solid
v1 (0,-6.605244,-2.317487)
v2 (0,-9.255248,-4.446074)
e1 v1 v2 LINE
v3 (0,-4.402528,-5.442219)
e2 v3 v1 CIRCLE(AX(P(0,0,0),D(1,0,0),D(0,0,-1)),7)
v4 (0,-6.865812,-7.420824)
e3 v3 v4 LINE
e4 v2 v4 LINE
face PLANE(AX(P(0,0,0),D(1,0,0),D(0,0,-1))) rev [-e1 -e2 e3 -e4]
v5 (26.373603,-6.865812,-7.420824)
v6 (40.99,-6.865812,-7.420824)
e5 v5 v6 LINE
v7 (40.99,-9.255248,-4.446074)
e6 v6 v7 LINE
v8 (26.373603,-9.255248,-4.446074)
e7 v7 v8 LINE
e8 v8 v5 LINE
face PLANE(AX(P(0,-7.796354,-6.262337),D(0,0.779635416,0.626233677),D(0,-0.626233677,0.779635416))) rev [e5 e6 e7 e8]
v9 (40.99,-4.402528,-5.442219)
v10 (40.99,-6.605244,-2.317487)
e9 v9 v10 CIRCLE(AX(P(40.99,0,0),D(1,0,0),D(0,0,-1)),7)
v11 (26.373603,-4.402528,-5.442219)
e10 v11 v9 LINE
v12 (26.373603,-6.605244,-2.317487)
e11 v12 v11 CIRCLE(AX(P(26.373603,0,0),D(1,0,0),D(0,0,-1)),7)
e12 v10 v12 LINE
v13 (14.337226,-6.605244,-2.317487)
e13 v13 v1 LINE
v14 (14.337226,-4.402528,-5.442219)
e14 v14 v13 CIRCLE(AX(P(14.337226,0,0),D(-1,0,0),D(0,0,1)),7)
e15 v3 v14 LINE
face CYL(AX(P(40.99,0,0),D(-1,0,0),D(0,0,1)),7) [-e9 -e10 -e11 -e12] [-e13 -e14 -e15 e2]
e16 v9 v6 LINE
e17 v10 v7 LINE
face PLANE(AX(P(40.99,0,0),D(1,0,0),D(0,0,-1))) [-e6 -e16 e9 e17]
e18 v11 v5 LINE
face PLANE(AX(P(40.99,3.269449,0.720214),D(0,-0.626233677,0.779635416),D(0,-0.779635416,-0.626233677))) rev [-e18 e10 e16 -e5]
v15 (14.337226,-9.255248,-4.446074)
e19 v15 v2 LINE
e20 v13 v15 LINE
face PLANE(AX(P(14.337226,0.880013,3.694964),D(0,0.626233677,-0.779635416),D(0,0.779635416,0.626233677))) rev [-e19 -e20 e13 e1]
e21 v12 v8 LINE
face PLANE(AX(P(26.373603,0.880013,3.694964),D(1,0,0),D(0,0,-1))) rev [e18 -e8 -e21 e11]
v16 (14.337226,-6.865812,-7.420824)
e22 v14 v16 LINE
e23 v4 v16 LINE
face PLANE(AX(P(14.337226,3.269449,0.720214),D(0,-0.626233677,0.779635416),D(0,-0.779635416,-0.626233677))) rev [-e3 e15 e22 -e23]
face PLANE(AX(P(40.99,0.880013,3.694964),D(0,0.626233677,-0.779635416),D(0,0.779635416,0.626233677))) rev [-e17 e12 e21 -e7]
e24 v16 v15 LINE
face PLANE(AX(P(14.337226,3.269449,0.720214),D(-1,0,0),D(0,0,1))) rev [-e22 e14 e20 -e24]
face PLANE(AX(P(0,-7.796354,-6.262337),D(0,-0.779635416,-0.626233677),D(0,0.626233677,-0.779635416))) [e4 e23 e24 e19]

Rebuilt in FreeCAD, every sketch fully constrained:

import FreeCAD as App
import Part
import Sketcher

V = App.Vector


def add_polygon(sketch, points):
    """Adds a closed chain of lines whose ends are joined by coincident constraints."""
    first, n = sketch.GeometryCount, len(points)
    for a, b in zip(points, points[1:] + points[:1]):
        sketch.addGeometry(Part.LineSegment(App.Vector(*a, 0), App.Vector(*b, 0)), False)
    for i in range(n):
        sketch.addConstraint(Sketcher.Constraint("Coincident", first + i, 2, first + (i + 1) % n, 1))

doc = App.newDocument("Part")
body = doc.addObject("PartDesign::Body", "Body")

sketch1 = body.newObject("Sketcher::SketchObject", "Sketch")
sketch1.AttachmentSupport = (doc.getObject("YZ_Plane"), [""])
sketch1.MapMode = "FlatFace"
sketch1.addGeometry(Part.Circle(V(0, 0, 0), V(0, 0, 1), 7), False)
sketch1.addConstraint([
    Sketcher.Constraint("Coincident", 0, 3, -1, 1),
    Sketcher.Constraint("Diameter", 0, 14.0),
])
pad1 = body.newObject("PartDesign::Pad", "Pad")
pad1.Profile = sketch1
pad1.Length = 40.99
body2 = doc.addObject("PartDesign::Body", "Body001")

sketch2 = body2.newObject("Sketcher::SketchObject", "Sketch001")
sketch2.Placement = App.Placement(V(0, -5.457448, -4.383636), App.Rotation(V(1, 0, 0), V(0, -0.626233677, 0.779635416), V(0, -0.779635416, -0.626233677), "ZXY"))
add_polygon(sketch2, [(0, 2.3), (0, -1.5), (14.3, -1.5), (14.3, 2.3)])
sketch2.addConstraint([
    Sketcher.Constraint("Vertical", 0),
    Sketcher.Constraint("Horizontal", 1),
    Sketcher.Constraint("Vertical", 2),
    Sketcher.Constraint("Horizontal", 3),
    Sketcher.Constraint("PointOnObject", 0, 2, -2),
    Sketcher.Constraint("DistanceX", 1, 1, 1, 2, 14.337226),
    Sketcher.Constraint("DistanceY", 0, 2, 0, 1, 3.815566),
    Sketcher.Constraint("DistanceY", -1, 1, 2, 2, 2.329631),
])
pad2 = body2.newObject("PartDesign::Pad", "Pad001")
pad2.Profile = sketch2
pad2.Length = 3
body3 = doc.addObject("PartDesign::Body", "Body002")

sketch3 = body3.newObject("Sketcher::SketchObject", "Sketch002")
sketch3.Placement = App.Placement(V(0, -5.457448, -4.383636), App.Rotation(V(1, 0, 0), V(0, -0.626233677, 0.779635416), V(0, -0.779635416, -0.626233677), "ZXY"))
add_polygon(sketch3, [(26.4, 2.3), (26.4, -1.5), (41, -1.5), (41, 2.3)])
sketch3.addConstraint([
    Sketcher.Constraint("Vertical", 0),
    Sketcher.Constraint("Horizontal", 1),
    Sketcher.Constraint("Vertical", 2),
    Sketcher.Constraint("Horizontal", 3),
    Sketcher.Constraint("DistanceX", -1, 1, 1, 2, 40.99),
    Sketcher.Constraint("DistanceX", 1, 1, 1, 2, 14.616397),
    Sketcher.Constraint("DistanceY", 0, 2, 0, 1, 3.815566),
    Sketcher.Constraint("DistanceY", -1, 1, 2, 2, 2.329631),
])
pad3 = body3.newObject("PartDesign::Pad", "Pad002")
pad3.Profile = sketch3
pad3.Length = 3
body.AllowCompound = True
doc.recompute()

boolean = body.newObject("PartDesign::Boolean", "Boolean")
boolean.Type = "Fuse"
boolean.addObjects([body2])
doc.recompute()

boolean2 = body.newObject("PartDesign::Boolean", "Boolean001")
boolean2.Type = "Fuse"
boolean2.addObjects([body3])

sketch4 = body.newObject("Sketcher::SketchObject", "Sketch003")
sketch4.Placement = App.Placement(V(0, -5.457448, -4.383636), App.Rotation(V(1, 0, 0), V(0, 0.626233677, -0.779635416), V(0, 0.779635416, 0.626233677), "ZXY"))
add_polygon(sketch4, [(26.4, 1.5), (26.4, -2.3), (41, -2.3), (41, 1.5)])
add_polygon(sketch4, [(0, 1.5), (0, -2.3), (14.3, -2.3), (14.3, 1.5)])
sketch4.addConstraint([
    Sketcher.Constraint("Vertical", 0),
    Sketcher.Constraint("Horizontal", 1),
    Sketcher.Constraint("Vertical", 2),
    Sketcher.Constraint("Horizontal", 3),
    Sketcher.Constraint("Vertical", 4),
    Sketcher.Constraint("Horizontal", 5),
    Sketcher.Constraint("Vertical", 6),
    Sketcher.Constraint("Horizontal", 7),
    Sketcher.Constraint("PointOnObject", 4, 2, -2),
    Sketcher.Constraint("Horizontal", 1, 2, 4, 2),
    Sketcher.Constraint("Horizontal", 3, 2, 6, 2),
    Sketcher.Constraint("DistanceX", -1, 1, 1, 2, 40.99),
    Sketcher.Constraint("DistanceX", 1, 1, 1, 2, 14.616397),
    Sketcher.Constraint("DistanceX", 5, 1, 5, 2, 14.337226),
    Sketcher.Constraint("DistanceY", 0, 2, 0, 1, 3.815566),
    Sketcher.Constraint("DistanceY", 0, 2, -1, 1, 2.329631),
])
pad4 = body.newObject("PartDesign::Pad", "Pad003")
pad4.Profile = sketch4
pad4.Length = 10

doc.recompute()
